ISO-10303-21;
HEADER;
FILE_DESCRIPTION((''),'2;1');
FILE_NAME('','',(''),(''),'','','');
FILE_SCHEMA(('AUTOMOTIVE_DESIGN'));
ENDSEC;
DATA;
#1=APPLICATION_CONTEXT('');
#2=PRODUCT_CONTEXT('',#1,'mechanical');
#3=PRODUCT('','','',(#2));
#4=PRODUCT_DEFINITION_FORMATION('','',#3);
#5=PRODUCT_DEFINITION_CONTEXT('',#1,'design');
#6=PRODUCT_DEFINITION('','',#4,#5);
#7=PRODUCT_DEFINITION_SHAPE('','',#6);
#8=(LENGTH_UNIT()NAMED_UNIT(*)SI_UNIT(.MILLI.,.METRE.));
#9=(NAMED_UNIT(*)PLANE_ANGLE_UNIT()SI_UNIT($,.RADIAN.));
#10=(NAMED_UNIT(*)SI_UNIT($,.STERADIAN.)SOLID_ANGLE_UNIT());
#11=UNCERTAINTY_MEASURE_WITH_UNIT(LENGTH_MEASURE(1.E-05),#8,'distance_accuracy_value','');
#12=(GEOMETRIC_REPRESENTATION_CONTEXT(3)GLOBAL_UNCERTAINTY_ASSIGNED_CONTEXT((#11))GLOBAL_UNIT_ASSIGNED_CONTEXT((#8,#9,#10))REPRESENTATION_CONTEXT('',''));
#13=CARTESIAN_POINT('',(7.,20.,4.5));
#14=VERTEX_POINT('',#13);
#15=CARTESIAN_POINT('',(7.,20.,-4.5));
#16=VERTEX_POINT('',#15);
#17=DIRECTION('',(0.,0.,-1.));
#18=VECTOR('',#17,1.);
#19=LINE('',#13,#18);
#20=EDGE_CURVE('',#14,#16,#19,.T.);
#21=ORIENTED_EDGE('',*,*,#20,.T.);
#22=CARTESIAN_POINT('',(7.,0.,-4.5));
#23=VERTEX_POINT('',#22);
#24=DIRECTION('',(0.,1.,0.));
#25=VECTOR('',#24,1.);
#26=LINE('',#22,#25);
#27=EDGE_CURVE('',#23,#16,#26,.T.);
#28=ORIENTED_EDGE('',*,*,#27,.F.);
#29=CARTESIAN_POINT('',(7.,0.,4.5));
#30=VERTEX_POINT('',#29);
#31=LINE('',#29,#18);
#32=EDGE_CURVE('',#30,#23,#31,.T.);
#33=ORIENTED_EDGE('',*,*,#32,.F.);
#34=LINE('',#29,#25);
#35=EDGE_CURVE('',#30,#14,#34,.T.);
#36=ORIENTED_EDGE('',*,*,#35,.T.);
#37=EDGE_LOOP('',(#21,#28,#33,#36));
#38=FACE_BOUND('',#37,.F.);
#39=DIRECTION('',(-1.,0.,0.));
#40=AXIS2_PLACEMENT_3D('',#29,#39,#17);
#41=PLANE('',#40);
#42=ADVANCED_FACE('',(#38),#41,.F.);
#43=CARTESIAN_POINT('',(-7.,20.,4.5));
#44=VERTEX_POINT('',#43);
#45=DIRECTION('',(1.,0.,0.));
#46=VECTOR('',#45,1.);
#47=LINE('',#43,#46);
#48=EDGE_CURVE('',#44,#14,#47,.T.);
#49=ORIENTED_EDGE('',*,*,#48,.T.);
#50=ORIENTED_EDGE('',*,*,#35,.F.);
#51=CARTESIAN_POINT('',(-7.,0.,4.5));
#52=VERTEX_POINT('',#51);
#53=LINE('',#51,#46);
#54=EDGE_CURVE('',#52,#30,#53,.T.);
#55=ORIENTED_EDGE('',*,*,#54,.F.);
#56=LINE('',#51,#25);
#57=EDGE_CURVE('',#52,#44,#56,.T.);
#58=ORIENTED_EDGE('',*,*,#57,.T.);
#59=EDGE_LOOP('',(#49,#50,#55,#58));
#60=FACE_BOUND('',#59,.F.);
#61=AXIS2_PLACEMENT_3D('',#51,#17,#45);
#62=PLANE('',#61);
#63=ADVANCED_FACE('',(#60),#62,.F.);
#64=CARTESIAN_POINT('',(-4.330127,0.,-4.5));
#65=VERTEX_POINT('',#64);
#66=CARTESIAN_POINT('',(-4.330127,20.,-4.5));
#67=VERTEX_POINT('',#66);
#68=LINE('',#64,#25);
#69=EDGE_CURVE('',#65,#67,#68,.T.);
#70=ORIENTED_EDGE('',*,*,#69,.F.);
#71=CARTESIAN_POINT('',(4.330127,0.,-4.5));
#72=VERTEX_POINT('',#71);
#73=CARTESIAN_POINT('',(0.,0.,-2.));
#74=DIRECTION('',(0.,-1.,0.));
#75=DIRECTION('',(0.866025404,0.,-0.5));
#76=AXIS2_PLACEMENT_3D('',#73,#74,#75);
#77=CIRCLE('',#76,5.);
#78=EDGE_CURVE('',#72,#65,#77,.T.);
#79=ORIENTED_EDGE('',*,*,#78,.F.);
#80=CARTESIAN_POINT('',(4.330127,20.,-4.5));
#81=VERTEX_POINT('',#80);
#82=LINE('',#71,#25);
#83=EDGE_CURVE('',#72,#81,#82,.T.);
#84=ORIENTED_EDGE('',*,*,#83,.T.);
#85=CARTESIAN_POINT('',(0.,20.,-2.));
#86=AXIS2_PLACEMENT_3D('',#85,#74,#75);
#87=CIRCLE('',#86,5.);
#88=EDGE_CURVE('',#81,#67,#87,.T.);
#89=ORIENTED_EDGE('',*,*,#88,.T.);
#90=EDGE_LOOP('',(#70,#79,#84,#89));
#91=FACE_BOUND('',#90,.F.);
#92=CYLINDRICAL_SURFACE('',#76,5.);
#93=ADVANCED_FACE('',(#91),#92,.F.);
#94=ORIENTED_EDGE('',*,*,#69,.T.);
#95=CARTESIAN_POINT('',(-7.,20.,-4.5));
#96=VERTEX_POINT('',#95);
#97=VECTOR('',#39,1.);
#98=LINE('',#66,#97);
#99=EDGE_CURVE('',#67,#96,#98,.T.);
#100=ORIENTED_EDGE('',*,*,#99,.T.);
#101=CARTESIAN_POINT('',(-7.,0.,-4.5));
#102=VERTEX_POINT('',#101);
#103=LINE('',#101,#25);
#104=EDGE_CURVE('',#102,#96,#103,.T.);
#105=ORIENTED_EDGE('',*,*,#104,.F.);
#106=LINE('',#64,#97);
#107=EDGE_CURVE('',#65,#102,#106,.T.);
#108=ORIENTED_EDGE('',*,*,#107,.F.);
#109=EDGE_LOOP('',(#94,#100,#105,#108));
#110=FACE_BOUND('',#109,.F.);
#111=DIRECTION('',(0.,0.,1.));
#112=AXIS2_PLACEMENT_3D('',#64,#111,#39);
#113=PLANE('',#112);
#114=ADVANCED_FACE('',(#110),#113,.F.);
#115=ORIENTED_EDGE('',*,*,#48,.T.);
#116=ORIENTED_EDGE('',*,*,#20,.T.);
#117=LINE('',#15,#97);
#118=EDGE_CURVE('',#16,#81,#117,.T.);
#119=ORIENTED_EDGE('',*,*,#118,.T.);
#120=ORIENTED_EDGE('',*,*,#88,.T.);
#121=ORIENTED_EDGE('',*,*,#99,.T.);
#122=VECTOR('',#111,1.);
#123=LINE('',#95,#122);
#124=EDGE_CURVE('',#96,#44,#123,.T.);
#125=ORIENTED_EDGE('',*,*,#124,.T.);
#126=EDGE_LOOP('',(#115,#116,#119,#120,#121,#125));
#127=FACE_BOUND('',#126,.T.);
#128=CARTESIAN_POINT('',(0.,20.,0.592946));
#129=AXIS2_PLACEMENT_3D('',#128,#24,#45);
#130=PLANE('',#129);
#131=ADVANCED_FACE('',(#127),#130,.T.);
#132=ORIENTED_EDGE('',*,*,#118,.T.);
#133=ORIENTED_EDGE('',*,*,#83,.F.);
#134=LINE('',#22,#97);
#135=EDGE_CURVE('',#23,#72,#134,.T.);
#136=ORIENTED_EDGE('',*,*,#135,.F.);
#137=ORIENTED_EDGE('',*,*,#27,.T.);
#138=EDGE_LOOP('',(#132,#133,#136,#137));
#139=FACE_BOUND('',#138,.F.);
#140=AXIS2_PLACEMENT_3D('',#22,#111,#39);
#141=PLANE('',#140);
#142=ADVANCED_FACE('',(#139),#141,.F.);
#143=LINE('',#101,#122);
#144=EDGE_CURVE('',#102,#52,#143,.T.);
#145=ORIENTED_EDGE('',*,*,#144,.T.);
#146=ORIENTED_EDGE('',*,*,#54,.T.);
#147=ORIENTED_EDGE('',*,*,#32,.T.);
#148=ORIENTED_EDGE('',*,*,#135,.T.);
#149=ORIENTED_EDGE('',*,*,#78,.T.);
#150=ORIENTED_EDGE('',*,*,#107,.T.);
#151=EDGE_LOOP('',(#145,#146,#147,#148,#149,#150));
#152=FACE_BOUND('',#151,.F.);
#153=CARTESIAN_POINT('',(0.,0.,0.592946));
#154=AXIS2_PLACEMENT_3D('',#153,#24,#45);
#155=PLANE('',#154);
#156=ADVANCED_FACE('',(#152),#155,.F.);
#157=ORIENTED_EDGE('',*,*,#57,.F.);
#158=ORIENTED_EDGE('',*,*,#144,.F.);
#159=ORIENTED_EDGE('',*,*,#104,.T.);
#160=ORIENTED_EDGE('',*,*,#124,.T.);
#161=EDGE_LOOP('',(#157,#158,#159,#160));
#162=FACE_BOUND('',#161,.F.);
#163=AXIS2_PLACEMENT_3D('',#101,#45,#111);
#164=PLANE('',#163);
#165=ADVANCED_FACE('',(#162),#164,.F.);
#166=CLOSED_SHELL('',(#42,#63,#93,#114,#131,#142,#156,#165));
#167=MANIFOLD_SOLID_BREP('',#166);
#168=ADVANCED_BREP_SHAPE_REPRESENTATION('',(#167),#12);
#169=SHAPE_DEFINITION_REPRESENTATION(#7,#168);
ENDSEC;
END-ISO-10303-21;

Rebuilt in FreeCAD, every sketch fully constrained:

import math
import FreeCAD as App
import Part
import Sketcher
from FreeCAD import Vector

doc = App.newDocument("Part")
body = doc.addObject("PartDesign::Body", "Body")

sketch1 = body.newObject("Sketcher::SketchObject", "Sketch")
sketch1.AttachmentSupport = (doc.getObject("XZ_Plane"), [""])
sketch1.MapMode = "FlatFace"
sketch1.addGeometry(Part.LineSegment(Vector(-4.3, -4.5, 0), Vector(-7, -4.5, 0)), False)
sketch1.addGeometry(Part.LineSegment(Vector(-7, -4.5, 0), Vector(-7, 4.5, 0)), False)
sketch1.addGeometry(Part.LineSegment(Vector(-7, 4.5, 0), Vector(7, 4.5, 0)), False)
sketch1.addGeometry(Part.LineSegment(Vector(7, 4.5, 0), Vector(7, -4.5, 0)), False)
sketch1.addGeometry(Part.LineSegment(Vector(7, -4.5, 0), Vector(4.3, -4.5, 0)), False)
sketch1.addGeometry(Part.ArcOfCircle(Part.Circle(Vector(0, -2, 0), Vector(0, 0, 1), 5), math.radians(-30), math.radians(210)), False)
sketch1.addConstraint(Sketcher.Constraint("Coincident", 0, 2, 1, 1))
sketch1.addConstraint(Sketcher.Constraint("Coincident", 1, 2, 2, 1))
sketch1.addConstraint(Sketcher.Constraint("Coincident", 2, 2, 3, 1))
sketch1.addConstraint(Sketcher.Constraint("Coincident", 3, 2, 4, 1))
sketch1.addConstraint(Sketcher.Constraint("Coincident", 4, 2, 5, 1))
sketch1.addConstraint(Sketcher.Constraint("Coincident", 5, 2, 0, 1))
sketch1.addConstraint(Sketcher.Constraint("Horizontal", 0))
sketch1.addConstraint(Sketcher.Constraint("Vertical", 1))
sketch1.addConstraint(Sketcher.Constraint("Horizontal", 2))
sketch1.addConstraint(Sketcher.Constraint("Vertical", 3))
sketch1.addConstraint(Sketcher.Constraint("Horizontal", 4))
sketch1.addConstraint(Sketcher.Constraint("Symmetric", 0, 2, 2, 2, -1, 1))
sketch1.addConstraint(Sketcher.Constraint("Symmetric", 4, 2, 5, 2, -2))
sketch1.addConstraint(Sketcher.Constraint("Radius", 5, 5.0))
sketch1.addConstraint(Sketcher.Constraint("DistanceX", 2, 1, 2, 2, 14.0))
sketch1.addConstraint(Sketcher.Constraint("DistanceY", 1, 1, 1, 2, 9.0))
sketch1.addConstraint(Sketcher.Constraint("DistanceY", 5, 3, -1, 1, 2.0))
pad1 = body.newObject("PartDesign::Pad", "Pad")
pad1.Profile = sketch1
pad1.Length = 20
pad1.Reversed = True

doc.recompute()
